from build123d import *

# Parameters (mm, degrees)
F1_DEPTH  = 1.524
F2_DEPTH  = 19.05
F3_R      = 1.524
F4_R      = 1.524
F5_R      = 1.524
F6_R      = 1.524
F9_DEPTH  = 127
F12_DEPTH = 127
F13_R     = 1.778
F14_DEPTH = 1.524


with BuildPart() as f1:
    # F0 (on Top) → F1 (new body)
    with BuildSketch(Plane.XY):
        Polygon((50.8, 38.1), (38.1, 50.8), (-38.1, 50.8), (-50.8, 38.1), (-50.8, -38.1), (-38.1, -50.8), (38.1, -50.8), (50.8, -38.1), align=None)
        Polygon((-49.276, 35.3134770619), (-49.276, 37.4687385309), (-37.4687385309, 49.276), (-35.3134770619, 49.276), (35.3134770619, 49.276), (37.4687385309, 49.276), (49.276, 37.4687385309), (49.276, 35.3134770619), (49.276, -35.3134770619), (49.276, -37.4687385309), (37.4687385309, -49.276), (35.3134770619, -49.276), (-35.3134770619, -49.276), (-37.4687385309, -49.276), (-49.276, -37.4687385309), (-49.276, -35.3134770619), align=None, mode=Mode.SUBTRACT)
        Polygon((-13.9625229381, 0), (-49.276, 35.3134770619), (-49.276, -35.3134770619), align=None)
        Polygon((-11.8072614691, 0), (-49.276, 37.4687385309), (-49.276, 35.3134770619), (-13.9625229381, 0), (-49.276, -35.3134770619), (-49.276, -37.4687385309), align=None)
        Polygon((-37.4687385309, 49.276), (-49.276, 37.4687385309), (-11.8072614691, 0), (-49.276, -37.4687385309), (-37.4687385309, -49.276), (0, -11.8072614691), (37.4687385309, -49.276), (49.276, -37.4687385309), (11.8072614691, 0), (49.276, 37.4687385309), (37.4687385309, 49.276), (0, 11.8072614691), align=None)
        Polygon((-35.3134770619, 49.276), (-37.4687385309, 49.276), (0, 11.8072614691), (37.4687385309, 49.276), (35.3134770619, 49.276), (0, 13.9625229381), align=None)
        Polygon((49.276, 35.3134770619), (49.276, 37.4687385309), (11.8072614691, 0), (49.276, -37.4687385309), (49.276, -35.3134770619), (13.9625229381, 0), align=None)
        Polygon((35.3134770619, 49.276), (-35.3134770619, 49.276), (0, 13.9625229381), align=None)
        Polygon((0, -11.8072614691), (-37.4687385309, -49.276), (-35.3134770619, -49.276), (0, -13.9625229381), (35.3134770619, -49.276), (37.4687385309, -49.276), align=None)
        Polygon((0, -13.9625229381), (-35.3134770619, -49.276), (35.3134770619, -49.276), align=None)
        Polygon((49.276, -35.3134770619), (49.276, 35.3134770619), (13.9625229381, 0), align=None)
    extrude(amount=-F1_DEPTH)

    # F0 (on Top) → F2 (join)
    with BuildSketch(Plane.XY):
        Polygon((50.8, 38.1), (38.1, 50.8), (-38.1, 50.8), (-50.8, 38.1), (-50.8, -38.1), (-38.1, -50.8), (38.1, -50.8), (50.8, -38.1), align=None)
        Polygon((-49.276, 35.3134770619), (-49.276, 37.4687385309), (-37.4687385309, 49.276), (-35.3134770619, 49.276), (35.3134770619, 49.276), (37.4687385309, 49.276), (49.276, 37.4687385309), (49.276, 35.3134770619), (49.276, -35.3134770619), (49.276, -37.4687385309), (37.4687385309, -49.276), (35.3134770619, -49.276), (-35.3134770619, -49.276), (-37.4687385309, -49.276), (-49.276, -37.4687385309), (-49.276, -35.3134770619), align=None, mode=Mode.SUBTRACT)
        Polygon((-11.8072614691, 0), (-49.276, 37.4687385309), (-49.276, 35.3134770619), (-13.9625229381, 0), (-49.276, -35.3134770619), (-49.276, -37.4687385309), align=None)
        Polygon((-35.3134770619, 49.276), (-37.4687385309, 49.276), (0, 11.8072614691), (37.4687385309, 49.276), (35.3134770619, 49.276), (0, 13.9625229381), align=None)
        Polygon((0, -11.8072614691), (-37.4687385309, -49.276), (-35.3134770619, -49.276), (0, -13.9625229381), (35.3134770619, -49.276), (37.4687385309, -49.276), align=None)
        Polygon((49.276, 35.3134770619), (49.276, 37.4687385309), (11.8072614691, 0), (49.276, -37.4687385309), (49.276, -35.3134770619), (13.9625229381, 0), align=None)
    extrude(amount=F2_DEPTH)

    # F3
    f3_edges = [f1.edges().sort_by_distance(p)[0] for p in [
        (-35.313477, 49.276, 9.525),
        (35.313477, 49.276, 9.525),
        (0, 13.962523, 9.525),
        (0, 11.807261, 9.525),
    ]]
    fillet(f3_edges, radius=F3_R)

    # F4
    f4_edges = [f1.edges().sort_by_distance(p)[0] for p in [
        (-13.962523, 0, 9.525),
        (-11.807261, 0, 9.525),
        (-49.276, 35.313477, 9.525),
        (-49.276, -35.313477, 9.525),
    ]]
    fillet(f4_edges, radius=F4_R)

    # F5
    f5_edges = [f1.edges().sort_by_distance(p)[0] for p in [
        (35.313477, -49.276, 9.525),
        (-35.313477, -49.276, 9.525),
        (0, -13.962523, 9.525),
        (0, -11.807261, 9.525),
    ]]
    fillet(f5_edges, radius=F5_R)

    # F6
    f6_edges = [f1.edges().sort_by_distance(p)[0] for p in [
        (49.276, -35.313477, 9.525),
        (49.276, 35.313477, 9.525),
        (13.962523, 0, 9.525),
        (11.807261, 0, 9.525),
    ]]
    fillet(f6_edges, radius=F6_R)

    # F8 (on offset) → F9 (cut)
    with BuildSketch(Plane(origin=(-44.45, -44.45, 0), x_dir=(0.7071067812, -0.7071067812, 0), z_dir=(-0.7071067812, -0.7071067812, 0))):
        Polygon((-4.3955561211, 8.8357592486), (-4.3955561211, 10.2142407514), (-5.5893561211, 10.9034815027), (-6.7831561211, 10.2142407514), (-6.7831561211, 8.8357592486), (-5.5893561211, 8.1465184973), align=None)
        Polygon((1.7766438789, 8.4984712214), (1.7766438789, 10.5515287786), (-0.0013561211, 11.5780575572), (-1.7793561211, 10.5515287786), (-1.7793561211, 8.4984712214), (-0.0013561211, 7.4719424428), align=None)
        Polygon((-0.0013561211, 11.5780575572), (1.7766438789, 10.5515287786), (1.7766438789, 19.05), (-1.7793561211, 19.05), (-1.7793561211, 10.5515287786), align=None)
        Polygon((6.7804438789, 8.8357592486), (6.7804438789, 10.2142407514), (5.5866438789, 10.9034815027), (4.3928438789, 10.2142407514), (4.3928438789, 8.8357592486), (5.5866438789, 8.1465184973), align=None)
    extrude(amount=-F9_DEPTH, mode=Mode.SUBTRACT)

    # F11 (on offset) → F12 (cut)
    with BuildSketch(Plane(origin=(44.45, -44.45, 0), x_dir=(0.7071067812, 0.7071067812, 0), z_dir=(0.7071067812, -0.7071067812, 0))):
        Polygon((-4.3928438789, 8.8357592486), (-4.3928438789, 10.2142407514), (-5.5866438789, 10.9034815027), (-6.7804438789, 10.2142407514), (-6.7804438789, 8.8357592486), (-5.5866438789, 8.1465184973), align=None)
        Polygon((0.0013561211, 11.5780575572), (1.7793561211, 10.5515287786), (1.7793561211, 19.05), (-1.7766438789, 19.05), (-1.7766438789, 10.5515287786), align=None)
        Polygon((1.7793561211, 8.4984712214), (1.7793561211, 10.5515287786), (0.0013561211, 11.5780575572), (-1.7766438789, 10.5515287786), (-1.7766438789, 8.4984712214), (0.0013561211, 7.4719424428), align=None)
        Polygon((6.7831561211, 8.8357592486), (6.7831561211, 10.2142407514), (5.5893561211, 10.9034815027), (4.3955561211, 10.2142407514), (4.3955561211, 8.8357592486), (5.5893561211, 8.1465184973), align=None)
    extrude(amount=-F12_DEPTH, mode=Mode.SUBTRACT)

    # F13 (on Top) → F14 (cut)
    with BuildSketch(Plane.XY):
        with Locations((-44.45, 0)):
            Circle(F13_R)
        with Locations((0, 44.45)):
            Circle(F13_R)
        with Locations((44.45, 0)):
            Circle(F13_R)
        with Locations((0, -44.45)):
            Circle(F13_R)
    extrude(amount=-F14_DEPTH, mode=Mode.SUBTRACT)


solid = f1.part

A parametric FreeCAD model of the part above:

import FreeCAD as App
import Part
import Sketcher
from FreeCAD import Vector
Q = App.Units.Quantity


def edges_at(feature, points):
    """Names of the edges that pass closest to the given points."""
    edges = feature.Shape.Edges
    near = lambda p: min(range(len(edges)), key=lambda i: edges[i].distToShape(Part.Vertex(*p))[0])
    return sorted({f"Edge{near(p) + 1}" for p in points})

doc = App.newDocument("Part")
body = doc.addObject("PartDesign::Body", "Body")

# Sketch on XY plane
sketch1 = body.newObject("Sketcher::SketchObject", "Sketch")
sketch1.AttachmentSupport = (doc.getObject("XY_Plane"), [""])
sketch1.MapMode = "FlatFace"
sketch1.addGeometry([
    Part.LineSegment(Vector(51, 38, 0), Vector(38, 51, 0)),  # 0
    Part.LineSegment(Vector(38, 51, 0), Vector(-38, 51, 0)),  # 1
    Part.LineSegment(Vector(-38, 51, 0), Vector(-51, 38, 0)),  # 2
    Part.LineSegment(Vector(-51, 38, 0), Vector(-51, -38, 0)),  # 3
    Part.LineSegment(Vector(-51, -38, 0), Vector(-38, -51, 0)),  # 4
    Part.LineSegment(Vector(-38, -51, 0), Vector(38, -51, 0)),  # 5
    Part.LineSegment(Vector(38, -51, 0), Vector(51, -38, 0)),  # 6
    Part.LineSegment(Vector(51, -38, 0), Vector(51, 38, 0)),  # 7
], False)
sketch1.addConstraint([
    Sketcher.Constraint("Coincident", 0, 2, 1, 1),
    Sketcher.Constraint("Coincident", 1, 2, 2, 1),
    Sketcher.Constraint("Coincident", 2, 2, 3, 1),
    Sketcher.Constraint("Coincident", 3, 2, 4, 1),
    Sketcher.Constraint("Coincident", 4, 2, 5, 1),
    Sketcher.Constraint("Coincident", 5, 2, 6, 1),
    Sketcher.Constraint("Coincident", 6, 2, 7, 1),
    Sketcher.Constraint("Coincident", 7, 2, 0, 1),
    Sketcher.Constraint("Horizontal", 1),
    Sketcher.Constraint("Vertical", 3),
    Sketcher.Constraint("Horizontal", 5),
    Sketcher.Constraint("Vertical", 7),
    Sketcher.Constraint("Symmetric", 0, 2, 4, 2, -1, 1),
    Sketcher.Constraint("Symmetric", 2, 2, 6, 2, -1, 1),
    Sketcher.Constraint("Perpendicular", 0, 2),
    Sketcher.Constraint("Perpendicular", 2, 4),
    Sketcher.Constraint("Perpendicular", 4, 6),
    Sketcher.Constraint("Horizontal", 3, 2, 6, 2),
    Sketcher.Constraint("Vertical", 1, 2, 4, 2),
    Sketcher.Constraint("Equal", 5, 3),
    Sketcher.Constraint("DistanceX", 1, 2, 1, 1, Q("3 in")),
    Sketcher.Constraint("DistanceY", -1, 1, 0, 2, Q("2 in")),
])
pad1 = body.newObject("PartDesign::Pad", "Pad")
pad1.Profile = sketch1
pad1.Length = Q("0.06 in")
pad1.Reversed = True

# Sketch on XY plane
sketch2 = body.newObject("Sketcher::SketchObject", "Sketch001")
sketch2.AttachmentSupport = (doc.getObject("XY_Plane"), [""])
sketch2.MapMode = "FlatFace"
sketch2.addGeometry([
    Part.LineSegment(Vector(51, 38, 0), Vector(38, 51, 0)),  # 0
    Part.LineSegment(Vector(38, 51, 0), Vector(-38, 51, 0)),  # 1
    Part.LineSegment(Vector(-38, 51, 0), Vector(-51, 38, 0)),  # 2
    Part.LineSegment(Vector(-51, 38, 0), Vector(-51, -38, 0)),  # 3
    Part.LineSegment(Vector(-51, -38, 0), Vector(-38, -51, 0)),  # 4
    Part.LineSegment(Vector(-38, -51, 0), Vector(38, -51, 0)),  # 5
    Part.LineSegment(Vector(38, -51, 0), Vector(51, -38, 0)),  # 6
    Part.LineSegment(Vector(51, -38, 0), Vector(51, 38, 0)),  # 7
    Part.LineSegment(Vector(-49, -35, 0), Vector(-49, 35, 0)),  # 8
    Part.LineSegment(Vector(-49, 35, 0), Vector(-14, 0, 0)),  # 9
    Part.LineSegment(Vector(-14, 0, 0), Vector(-49, -35, 0)),  # 10
    Part.LineSegment(Vector(-49, 37, 0), Vector(-37, 49, 0)),  # 11
    Part.LineSegment(Vector(-37, 49, 0), Vector(0, 12, 0)),  # 12
    Part.LineSegment(Vector(0, 12, 0), Vector(37, 49, 0)),  # 13
    Part.LineSegment(Vector(37, 49, 0), Vector(49, 37, 0)),  # 14
    Part.LineSegment(Vector(49, 37, 0), Vector(12, 0, 0)),  # 15
    Part.LineSegment(Vector(12, 0, 0), Vector(49, -37, 0)),  # 16
    Part.LineSegment(Vector(49, -37, 0), Vector(37, -49, 0)),  # 17
    Part.LineSegment(Vector(37, -49, 0), Vector(0, -12, 0)),  # 18
    Part.LineSegment(Vector(0, -12, 0), Vector(-37, -49, 0)),  # 19
    Part.LineSegment(Vector(-37, -49, 0), Vector(-49, -37, 0)),  # 20
    Part.LineSegment(Vector(-49, -37, 0), Vector(-12, 0, 0)),  # 21
    Part.LineSegment(Vector(-12, 0, 0), Vector(-49, 37, 0)),  # 22
    Part.LineSegment(Vector(49, 35, 0), Vector(49, -35, 0)),  # 23
    Part.LineSegment(Vector(49, -35, 0), Vector(14, 0, 0)),  # 24
    Part.LineSegment(Vector(14, 0, 0), Vector(49, 35, 0)),  # 25
    Part.LineSegment(Vector(35, -49, 0), Vector(-35, -49, 0)),  # 26
    Part.LineSegment(Vector(-35, -49, 0), Vector(0, -14, 0)),  # 27
    Part.LineSegment(Vector(0, -14, 0), Vector(35, -49, 0)),  # 28
    Part.LineSegment(Vector(-35, 49, 0), Vector(35, 49, 0)),  # 29
    Part.LineSegment(Vector(35, 49, 0), Vector(0, 14, 0)),  # 30
    Part.LineSegment(Vector(0, 14, 0), Vector(-35, 49, 0)),  # 31
], False)
sketch2.addConstraint([
    Sketcher.Constraint("Coincident", 0, 2, 1, 1),
    Sketcher.Constraint("Coincident", 1, 2, 2, 1),
    Sketcher.Constraint("Coincident", 2, 2, 3, 1),
    Sketcher.Constraint("Coincident", 3, 2, 4, 1),
    Sketcher.Constraint("Coincident", 4, 2, 5, 1),
    Sketcher.Constraint("Coincident", 5, 2, 6, 1),
    Sketcher.Constraint("Coincident", 6, 2, 7, 1),
    Sketcher.Constraint("Coincident", 7, 2, 0, 1),
    Sketcher.Constraint("Coincident", 8, 2, 9, 1),
    Sketcher.Constraint("Coincident", 9, 2, 10, 1),
    Sketcher.Constraint("Coincident", 10, 2, 8, 1),
    Sketcher.Constraint("Coincident", 11, 2, 12, 1),
    Sketcher.Constraint("Coincident", 12, 2, 13, 1),
    Sketcher.Constraint("Coincident", 13, 2, 14, 1),
    Sketcher.Constraint("Coincident", 14, 2, 15, 1),
    Sketcher.Constraint("Coincident", 15, 2, 16, 1),
    Sketcher.Constraint("Coincident", 16, 2, 17, 1),
    Sketcher.Constraint("Coincident", 17, 2, 18, 1),
    Sketcher.Constraint("Coincident", 18, 2, 19, 1),
    Sketcher.Constraint("Coincident", 19, 2, 20, 1),
    Sketcher.Constraint("Coincident", 20, 2, 21, 1),
    Sketcher.Constraint("Coincident", 21, 2, 22, 1),
    Sketcher.Constraint("Coincident", 22, 2, 11, 1),
    Sketcher.Constraint("Coincident", 23, 2, 24, 1),
    Sketcher.Constraint("Coincident", 24, 2, 25, 1),
    Sketcher.Constraint("Coincident", 25, 2, 23, 1),
    Sketcher.Constraint("Coincident", 26, 2, 27, 1),
    Sketcher.Constraint("Coincident", 27, 2, 28, 1),
    Sketcher.Constraint("Coincident", 28, 2, 26, 1),
    Sketcher.Constraint("Coincident", 29, 2, 30, 1),
    Sketcher.Constraint("Coincident", 30, 2, 31, 1),
    Sketcher.Constraint("Coincident", 31, 2, 29, 1),
    Sketcher.Constraint("Horizontal", 1),
    Sketcher.Constraint("Vertical", 3),
    Sketcher.Constraint("Horizontal", 5),
    Sketcher.Constraint("Vertical", 7),
    Sketcher.Constraint("Vertical", 8),
    Sketcher.Constraint("Vertical", 23),
    Sketcher.Constraint("Horizontal", 26),
    Sketcher.Constraint("Horizontal", 29),
    Sketcher.Constraint("Symmetric", 0, 2, 4, 2, -1, 1),
    Sketcher.Constraint("Symmetric", 2, 2, 6, 2, -1, 1),
    Sketcher.Constraint("Symmetric", 11, 2, 17, 2, -1, 1),
    Sketcher.Constraint("Symmetric", 12, 2, 18, 2, -1, 1),
    Sketcher.Constraint("Symmetric", 13, 2, 19, 2, -1, 1),
    Sketcher.Constraint("Symmetric", 14, 2, 20, 2, -1, 1),
    Sketcher.Constraint("Symmetric", 15, 2, 21, 2, -1, 1),
    Sketcher.Constraint("Symmetric", 16, 2, 22, 2, -1, 1),
    Sketcher.Constraint("Symmetric", 8, 2, 23, 2, -1, 1),
    Sketcher.Constraint("Symmetric", 9, 2, 24, 2, -1, 1),
    Sketcher.Constraint("Symmetric", 26, 2, 29, 2, -1, 1),
    Sketcher.Constraint("Symmetric", 27, 2, 30, 2, -1, 1),
    Sketcher.Constraint("Symmetric", 11, 2, 13, 2, -2),
    Sketcher.Constraint("Symmetric", 16, 2, 20, 2, -2),
    Sketcher.Constraint("PointOnObject", 9, 2, -1),
    Sketcher.Constraint("PointOnObject", 12, 2, -2),
    Sketcher.Constraint("PointOnObject", 15, 2, -1),
    Sketcher.Constraint("PointOnObject", 27, 2, -2),
    Sketcher.Constraint("Perpendicular", 0, 2),
    Sketcher.Constraint("Perpendicular", 2, 4),
    Sketcher.Constraint("Perpendicular", 4, 6),
    Sketcher.Constraint("Perpendicular", 6, 9),
    Sketcher.Constraint("Perpendicular", 9, 10),
    Sketcher.Constraint("Parallel", 10, 11),
    Sketcher.Constraint("Perpendicular", 11, 12),
    Sketcher.Constraint("Perpendicular", 12, 13),
    Sketcher.Constraint("Perpendicular", 14, 15),
    Sketcher.Constraint("Perpendicular", 24, 25),
    Sketcher.Constraint("Parallel", 25, 27),
    Sketcher.Constraint("Perpendicular", 27, 28),
    Sketcher.Constraint("Perpendicular", 30, 31),
    Sketcher.Constraint("Horizontal", 3, 2, 6, 2),
    Sketcher.Constraint("Horizontal", 19, 2, 26, 2),
    Sketcher.Constraint("Vertical", 10, 2, 20, 2),
    Sketcher.Constraint("Equal", 5, 3),
    Sketcher.Constraint("Equal", 29, 8),
    Sketcher.Constraint("Equal", 13, 15),
    Sketcher.Constraint("DistanceX", 1, 2, 1, 1, Q("3 in")),
    Sketcher.Constraint("DistanceY", -1, 1, 0, 2, Q("2 in")),
    Sketcher.Constraint("DistanceX", 8, 2, -1, 1, Q("1.94 in")),
    Sketcher.Constraint("Distance", 9, 49.940798),
    Sketcher.Constraint("Distance", 12, 52.988798),
])
pad2 = body.newObject("PartDesign::Pad", "Pad001")
pad2.Profile = sketch2
pad2.Length = Q("0.75 in")
doc.recompute()

fillet = body.newObject("PartDesign::Fillet", "Fillet")
fillet.Base = (pad2, edges_at(pad2, [
    (-35.313, 49.276, 9.525),
    (35.313, 49.276, 9.525),
    (0, 13.963, 9.525),
    (0, 11.807, 9.525),
]))
fillet.Radius = Q("0.06 in")
doc.recompute()

fillet2 = body.newObject("PartDesign::Fillet", "Fillet001")
fillet2.Base = (fillet, edges_at(fillet, [
    (-13.963, 0, 9.525),
    (-11.807, 0, 9.525),
    (-49.276, 35.313, 9.525),
    (-49.276, -35.313, 9.525),
]))
fillet2.Radius = Q("0.06 in")
doc.recompute()

fillet3 = body.newObject("PartDesign::Fillet", "Fillet002")
fillet3.Base = (fillet2, edges_at(fillet2, [
    (35.313, -49.276, 9.525),
    (-35.313, -49.276, 9.525),
    (0, -13.963, 9.525),
    (0, -11.807, 9.525),
]))
fillet3.Radius = Q("0.06 in")
doc.recompute()

fillet4 = body.newObject("PartDesign::Fillet", "Fillet003")
fillet4.Base = (fillet3, edges_at(fillet3, [
    (49.276, -35.313, 9.525),
    (49.276, 35.313, 9.525),
    (13.963, 0, 9.525),
    (11.807, 0, 9.525),
]))
fillet4.Radius = Q("0.06 in")

# Sketch on an angled plane
sketch3 = body.newObject("Sketcher::SketchObject", "Sketch002")
sketch3.Placement = App.Placement(Vector(-44.45, -44.45, 0), App.Rotation(Vector(0.707106781, -0.707106781, 0), Vector(0, 0, 0.999999999), Vector(-0.707106781, -0.707106781, 0), "ZXY"))
sketch3.addGeometry([
    Part.LineSegment(Vector(-4.4, 8.8, 0), Vector(-4.4, 10.2, 0)),  # 0
    Part.LineSegment(Vector(-4.4, 10.2, 0), Vector(-5.6, 10.9, 0)),  # 1
    Part.LineSegment(Vector(-5.6, 10.9, 0), Vector(-6.8, 10.2, 0)),  # 2
    Part.LineSegment(Vector(-6.8, 10.2, 0), Vector(-6.8, 8.8, 0)),  # 3
    Part.LineSegment(Vector(-6.8, 8.8, 0), Vector(-5.6, 8.1, 0)),  # 4
    Part.LineSegment(Vector(-5.6, 8.1, 0), Vector(-4.4, 8.8, 0)),  # 5
    Part.LineSegment(Vector(1.8, 8.5, 0), Vector(1.8, 19, 0)),  # 6
    Part.LineSegment(Vector(1.8, 19, 0), Vector(-1.8, 19, 0)),  # 7
    Part.LineSegment(Vector(-1.8, 19, 0), Vector(-1.8, 8.5, 0)),  # 8
    Part.LineSegment(Vector(-1.8, 8.5, 0), Vector(0, 7.5, 0)),  # 9
    Part.LineSegment(Vector(0, 7.5, 0), Vector(1.8, 8.5, 0)),  # 10
    Part.LineSegment(Vector(6.8, 8.8, 0), Vector(6.8, 10.2, 0)),  # 11
    Part.LineSegment(Vector(6.8, 10.2, 0), Vector(5.6, 10.9, 0)),  # 12
    Part.LineSegment(Vector(5.6, 10.9, 0), Vector(4.4, 10.2, 0)),  # 13
    Part.LineSegment(Vector(4.4, 10.2, 0), Vector(4.4, 8.8, 0)),  # 14
    Part.LineSegment(Vector(4.4, 8.8, 0), Vector(5.6, 8.1, 0)),  # 15
    Part.LineSegment(Vector(5.6, 8.1, 0), Vector(6.8, 8.8, 0)),  # 16
], False)
sketch3.addConstraint([
    Sketcher.Constraint("Coincident", 0, 2, 1, 1),
    Sketcher.Constraint("Coincident", 1, 2, 2, 1),
    Sketcher.Constraint("Coincident", 2, 2, 3, 1),
    Sketcher.Constraint("Coincident", 3, 2, 4, 1),
    Sketcher.Constraint("Coincident", 4, 2, 5, 1),
    Sketcher.Constraint("Coincident", 5, 2, 0, 1),
    Sketcher.Constraint("Coincident", 6, 2, 7, 1),
    Sketcher.Constraint("Coincident", 7, 2, 8, 1),
    Sketcher.Constraint("Coincident", 8, 2, 9, 1),
    Sketcher.Constraint("Coincident", 9, 2, 10, 1),
    Sketcher.Constraint("Coincident", 10, 2, 6, 1),
    Sketcher.Constraint("Coincident", 11, 2, 12, 1),
    Sketcher.Constraint("Coincident", 12, 2, 13, 1),
    Sketcher.Constraint("Coincident", 13, 2, 14, 1),
    Sketcher.Constraint("Coincident", 14, 2, 15, 1),
    Sketcher.Constraint("Coincident", 15, 2, 16, 1),
    Sketcher.Constraint("Coincident", 16, 2, 11, 1),
    Sketcher.Constraint("Vertical", 0),
    Sketcher.Constraint("Vertical", 3),
    Sketcher.Constraint("Vertical", 6),
    Sketcher.Constraint("Horizontal", 7),
    Sketcher.Constraint("Vertical", 8),
    Sketcher.Constraint("Vertical", 11),
    Sketcher.Constraint("Vertical", 14),
    Sketcher.Constraint("Parallel", 1, 4),
    Sketcher.Constraint("Parallel", 2, 5),
    Sketcher.Constraint("Parallel", 4, 9),
    Sketcher.Constraint("Parallel", 5, 10),
    Sketcher.Constraint("Parallel", 9, 12),
    Sketcher.Constraint("Parallel", 10, 13),
    Sketcher.Constraint("Parallel", 12, 15),
    Sketcher.Constraint("Parallel", 13, 16),
    Sketcher.Constraint("Horizontal", 0, 2, 2, 2),
    Sketcher.Constraint("Horizontal", 3, 2, 5, 2),
    Sketcher.Constraint("Horizontal", 8, 2, 10, 2),
    Sketcher.Constraint("Horizontal", 2, 2, 11, 2),
    Sketcher.Constraint("Horizontal", 1, 2, 12, 2),
    Sketcher.Constraint("Horizontal", 11, 2, 13, 2),
    Sketcher.Constraint("Horizontal", 5, 2, 14, 2),
    Sketcher.Constraint("Horizontal", 4, 2, 15, 2),
    Sketcher.Constraint("Vertical", 1, 2, 4, 2),
    Sketcher.Constraint("Angle", 1, Q("150 deg")),
    Sketcher.Constraint("DistanceX", 7, 2, 7, 1, Q("0.14 in")),
    Sketcher.Constraint("DistanceY", -1, 1, 6, 2, Q("0.75 in")),
    Sketcher.Constraint("DistanceX", 1, 2, 6, 2, Q("0.29 in")),
    Sketcher.Constraint("DistanceX", 0, 2, 11, 2, Q("0.44 in")),
    Sketcher.Constraint("DistanceX", 1, 2, 0, 2, Q("0.047 in")),
    Sketcher.Constraint("DistanceY", 9, 2, 1, 2, Q("0.1351 in")),
    Sketcher.Constraint("DistanceY", 0, 1, 0, 2, 1.378481),
    Sketcher.Constraint("DistanceY", 6, 1, 6, 2, 10.551529),
    Sketcher.Constraint("DistanceX", 0, 2, -1, 1, 4.395556),
])
pocket1 = body.newObject("PartDesign::Pocket", "Pocket")
pocket1.Profile = sketch3
pocket1.Length = Q("5 in")

# Sketch on an angled plane
sketch4 = body.newObject("Sketcher::SketchObject", "Sketch003")
sketch4.Placement = App.Placement(Vector(44.45, -44.45, 0), App.Rotation(Vector(0.707106781, 0.707106781, 0), Vector(0, 0, 0.999999999), Vector(0.707106781, -0.707106781, 0), "ZXY"))
sketch4.addGeometry([
    Part.LineSegment(Vector(-4.4, 8.8, 0), Vector(-4.4, 10.2, 0)),  # 0
    Part.LineSegment(Vector(-4.4, 10.2, 0), Vector(-5.6, 10.9, 0)),  # 1
    Part.LineSegment(Vector(-5.6, 10.9, 0), Vector(-6.8, 10.2, 0)),  # 2
    Part.LineSegment(Vector(-6.8, 10.2, 0), Vector(-6.8, 8.8, 0)),  # 3
    Part.LineSegment(Vector(-6.8, 8.8, 0), Vector(-5.6, 8.1, 0)),  # 4
    Part.LineSegment(Vector(-5.6, 8.1, 0), Vector(-4.4, 8.8, 0)),  # 5
    Part.LineSegment(Vector(1.8, 19, 0), Vector(-1.8, 19, 0)),  # 6
    Part.LineSegment(Vector(-1.8, 19, 0), Vector(-1.8, 8.5, 0)),  # 7
    Part.LineSegment(Vector(-1.8, 8.5, 0), Vector(0, 7.5, 0)),  # 8
    Part.LineSegment(Vector(0, 7.5, 0), Vector(1.8, 8.5, 0)),  # 9
    Part.LineSegment(Vector(1.8, 8.5, 0), Vector(1.8, 19, 0)),  # 10
    Part.LineSegment(Vector(6.8, 8.8, 0), Vector(6.8, 10.2, 0)),  # 11
    Part.LineSegment(Vector(6.8, 10.2, 0), Vector(5.6, 10.9, 0)),  # 12
    Part.LineSegment(Vector(5.6, 10.9, 0), Vector(4.4, 10.2, 0)),  # 13
    Part.LineSegment(Vector(4.4, 10.2, 0), Vector(4.4, 8.8, 0)),  # 14
    Part.LineSegment(Vector(4.4, 8.8, 0), Vector(5.6, 8.1, 0)),  # 15
    Part.LineSegment(Vector(5.6, 8.1, 0), Vector(6.8, 8.8, 0)),  # 16
], False)
sketch4.addConstraint([
    Sketcher.Constraint("Coincident", 0, 2, 1, 1),
    Sketcher.Constraint("Coincident", 1, 2, 2, 1),
    Sketcher.Constraint("Coincident", 2, 2, 3, 1),
    Sketcher.Constraint("Coincident", 3, 2, 4, 1),
    Sketcher.Constraint("Coincident", 4, 2, 5, 1),
    Sketcher.Constraint("Coincident", 5, 2, 0, 1),
    Sketcher.Constraint("Coincident", 6, 2, 7, 1),
    Sketcher.Constraint("Coincident", 7, 2, 8, 1),
    Sketcher.Constraint("Coincident", 8, 2, 9, 1),
    Sketcher.Constraint("Coincident", 9, 2, 10, 1),
    Sketcher.Constraint("Coincident", 10, 2, 6, 1),
    Sketcher.Constraint("Coincident", 11, 2, 12, 1),
    Sketcher.Constraint("Coincident", 12, 2, 13, 1),
    Sketcher.Constraint("Coincident", 13, 2, 14, 1),
    Sketcher.Constraint("Coincident", 14, 2, 15, 1),
    Sketcher.Constraint("Coincident", 15, 2, 16, 1),
    Sketcher.Constraint("Coincident", 16, 2, 11, 1),
    Sketcher.Constraint("Vertical", 0),
    Sketcher.Constraint("Vertical", 3),
    Sketcher.Constraint("Horizontal", 6),
    Sketcher.Constraint("Vertical", 7),
    Sketcher.Constraint("Vertical", 10),
    Sketcher.Constraint("Vertical", 11),
    Sketcher.Constraint("Vertical", 14),
    Sketcher.Constraint("Parallel", 1, 4),
    Sketcher.Constraint("Parallel", 2, 5),
    Sketcher.Constraint("Parallel", 4, 8),
    Sketcher.Constraint("Parallel", 5, 9),
    Sketcher.Constraint("Parallel", 8, 12),
    Sketcher.Constraint("Parallel", 9, 13),
    Sketcher.Constraint("Parallel", 12, 15),
    Sketcher.Constraint("Parallel", 13, 16),
    Sketcher.Constraint("Horizontal", 0, 2, 2, 2),
    Sketcher.Constraint("Horizontal", 3, 2, 5, 2),
    Sketcher.Constraint("Horizontal", 7, 2, 9, 2),
    Sketcher.Constraint("Horizontal", 2, 2, 11, 2),
    Sketcher.Constraint("Horizontal", 1, 2, 12, 2),
    Sketcher.Constraint("Horizontal", 11, 2, 13, 2),
    Sketcher.Constraint("Horizontal", 5, 2, 14, 2),
    Sketcher.Constraint("Horizontal", 4, 2, 15, 2),
    Sketcher.Constraint("Vertical", 1, 2, 4, 2),
    Sketcher.Constraint("Angle", 1, Q("150 deg")),
    Sketcher.Constraint("DistanceX", 6, 2, 6, 1, Q("0.14 in")),
    Sketcher.Constraint("DistanceY", -1, 1, 6, 2, Q("0.75 in")),
    Sketcher.Constraint("DistanceX", 1, 2, 6, 2, Q("0.15 in")),
    Sketcher.Constraint("DistanceX", 0, 2, 11, 2, Q("0.44 in")),
    Sketcher.Constraint("DistanceX", 1, 2, 0, 2, Q("0.047 in")),
    Sketcher.Constraint("DistanceY", 8, 2, 1, 2, Q("0.1351 in")),
    Sketcher.Constraint("DistanceY", 0, 1, 0, 2, 1.378481),
    Sketcher.Constraint("DistanceY", 7, 2, 7, 1, 10.551529),
    Sketcher.Constraint("DistanceX", 0, 2, -1, 1, 4.392844),
])
pocket2 = body.newObject("PartDesign::Pocket", "Pocket001")
pocket2.Profile = sketch4
pocket2.Length = Q("5 in")

# Sketch on XY plane
sketch5 = body.newObject("Sketcher::SketchObject", "Sketch004")
sketch5.AttachmentSupport = (doc.getObject("XY_Plane"), [""])
sketch5.MapMode = "FlatFace"
sketch5.addGeometry([
    Part.Circle(Vector(-44.5, 0, 0), Vector(0, 0, 1), 1.8),
    Part.Circle(Vector(0, 44.5, 0), Vector(0, 0, 1), 1.8),
    Part.Circle(Vector(44.5, 0, 0), Vector(0, 0, 1), 1.8),
    Part.Circle(Vector(0, -44.5, 0), Vector(0, 0, 1), 1.8),
], False)
sketch5.addConstraint([
    Sketcher.Constraint("Equal", 0, 1),
    Sketcher.Constraint("Equal", 1, 2),
    Sketcher.Constraint("Equal", 2, 3),
    Sketcher.Constraint("Symmetric", 0, 3, 2, 3, -1, 1),
    Sketcher.Constraint("Symmetric", 1, 3, 3, 3, -1, 1),
    Sketcher.Constraint("PointOnObject", 0, 3, -1),
    Sketcher.Constraint("PointOnObject", 1, 3, -2),
    Sketcher.Constraint("Diameter", 0, Q("0.14 in")),
    Sketcher.Constraint("DistanceX", 0, 3, 2, 3, Q("3.5 in")),
    Sketcher.Constraint("DistanceY", 3, 3, 1, 3, Q("3.5 in")),
])
pocket3 = body.newObject("PartDesign::Pocket", "Pocket002")
pocket3.Profile = sketch5
pocket3.Length = Q("0.06 in")

doc.recompute()
